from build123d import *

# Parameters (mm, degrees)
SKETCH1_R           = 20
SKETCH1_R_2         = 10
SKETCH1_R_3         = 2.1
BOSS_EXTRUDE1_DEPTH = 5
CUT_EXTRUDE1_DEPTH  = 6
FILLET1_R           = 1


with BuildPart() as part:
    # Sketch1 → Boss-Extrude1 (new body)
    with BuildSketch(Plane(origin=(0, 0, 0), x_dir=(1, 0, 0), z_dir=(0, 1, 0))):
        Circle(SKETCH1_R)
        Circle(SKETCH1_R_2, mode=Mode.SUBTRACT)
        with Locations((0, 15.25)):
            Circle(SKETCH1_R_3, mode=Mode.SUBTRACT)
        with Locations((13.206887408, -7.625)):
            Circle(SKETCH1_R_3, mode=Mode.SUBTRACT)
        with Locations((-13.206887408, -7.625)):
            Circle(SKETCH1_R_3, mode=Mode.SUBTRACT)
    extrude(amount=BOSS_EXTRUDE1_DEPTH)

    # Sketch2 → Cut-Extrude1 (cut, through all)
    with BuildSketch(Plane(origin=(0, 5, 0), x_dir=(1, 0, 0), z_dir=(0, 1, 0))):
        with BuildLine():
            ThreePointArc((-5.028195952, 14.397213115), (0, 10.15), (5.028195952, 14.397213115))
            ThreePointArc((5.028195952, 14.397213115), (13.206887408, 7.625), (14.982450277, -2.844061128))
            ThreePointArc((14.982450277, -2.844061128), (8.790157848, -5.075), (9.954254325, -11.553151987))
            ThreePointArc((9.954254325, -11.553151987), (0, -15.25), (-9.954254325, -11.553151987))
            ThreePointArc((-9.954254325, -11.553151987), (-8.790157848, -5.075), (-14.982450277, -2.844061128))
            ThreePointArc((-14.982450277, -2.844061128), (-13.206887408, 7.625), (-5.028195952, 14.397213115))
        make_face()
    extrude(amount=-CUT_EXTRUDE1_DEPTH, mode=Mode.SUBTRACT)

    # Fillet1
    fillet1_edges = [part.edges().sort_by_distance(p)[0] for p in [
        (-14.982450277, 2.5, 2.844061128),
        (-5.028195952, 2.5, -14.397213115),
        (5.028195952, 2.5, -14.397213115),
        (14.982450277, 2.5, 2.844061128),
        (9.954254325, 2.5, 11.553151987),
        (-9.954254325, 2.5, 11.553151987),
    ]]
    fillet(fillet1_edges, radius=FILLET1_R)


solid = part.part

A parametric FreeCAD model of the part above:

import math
import FreeCAD as App
import Part
import Sketcher

V = App.Vector


def edges_at(feature, points):
    """Names of the edges that pass closest to the given points."""
    edges = feature.Shape.Edges
    near = lambda p: min(range(len(edges)), key=lambda i: edges[i].distToShape(Part.Vertex(*p))[0])
    return sorted({f"Edge{near(p) + 1}" for p in points})

doc = App.newDocument("Part")
body = doc.addObject("PartDesign::Body", "Body")

# Sketch on XZ plane
sketch1 = doc.addObject("Sketcher::SketchObject", "Sketch")
body.addObject(sketch1)
sketch1.AttachmentSupport = (doc.XZ_Plane, [""])
sketch1.MapMode = "FlatFace"
sketch1.addGeometry(Part.Circle(V(0, 0, 0), V(0, 0, 1), 20), False)
sketch1.addGeometry(Part.Circle(V(-13.206887, 7.625, 0), V(0, 0, 1), 2.1), False)
sketch1.addGeometry(Part.Circle(V(13.206887, 7.625, 0), V(0, 0, 1), 2.1), False)
sketch1.addGeometry(Part.Circle(V(0, 0, 0), V(0, 0, 1), 10), False)
sketch1.addGeometry(Part.Circle(V(0, -15.25, 0), V(0, 0, 1), 2.1), False)
sketch1.addConstraint(Sketcher.Constraint("Coincident", 0, 3, -1, 1))
sketch1.addConstraint(Sketcher.Constraint("Coincident", 3, 3, -1, 1))
sketch1.addConstraint(Sketcher.Constraint("Equal", 1, 2))
sketch1.addConstraint(Sketcher.Constraint("Equal", 2, 4))
sketch1.addConstraint(Sketcher.Constraint("Symmetric", 1, 3, 2, 3, -2))
sketch1.addConstraint(Sketcher.Constraint("PointOnObject", 4, 3, -2))
sketch1.addConstraint(Sketcher.Constraint("Diameter", 0, 40.0))
sketch1.addConstraint(Sketcher.Constraint("Diameter", 3, 20.0))
sketch1.addConstraint(Sketcher.Constraint("Diameter", 1, 4.2))
sketch1.addConstraint(Sketcher.Constraint("DistanceY", 4, 3, -1, 1, 15.25))
sketch1.addConstraint(Sketcher.Constraint("DistanceY", -1, 1, 1, 3, 7.625))
sketch1.addConstraint(Sketcher.Constraint("DistanceX", 1, 3, -1, 1, 13.206887))
pad1 = doc.addObject("PartDesign::Pad", "Pad")
body.addObject(pad1)
pad1.Profile = sketch1
pad1.Length = 5
pad1.Reversed = True

# Sketch on XZ plane
sketch2 = doc.addObject("Sketcher::SketchObject", "Sketch001")
body.addObject(sketch2)
sketch2.AttachmentSupport = (doc.XZ_Plane, [""])
sketch2.MapMode = "FlatFace"
sketch2.AttachmentOffset = App.Placement(V(0, 0, -5), App.Rotation())
sketch2.addGeometry(Part.ArcOfCircle(Part.Circle(V(0, -15.25, 0), V(0, 0, 1), 5.1), math.radians(9.625823), math.radians(170.374177)), False)
sketch2.addGeometry(Part.ArcOfCircle(Part.Circle(V(0, 0, 0), V(0, 0, 1), 15.25), math.radians(169.251646), math.radians(250.748354)), False)
sketch2.addGeometry(Part.ArcOfCircle(Part.Circle(V(-13.206887, 7.625, 0), V(0, 0, 1), 5.1), math.radians(-110.374177), math.radians(50.374177)), False)
sketch2.addGeometry(Part.ArcOfCircle(Part.Circle(V(0, 0, 0), V(0, 0, 1), 15.25), math.radians(49.251646), math.radians(130.748354)), False)
sketch2.addGeometry(Part.ArcOfCircle(Part.Circle(V(13.206887, 7.625, 0), V(0, 0, 1), 5.1), math.radians(129.625823), math.radians(290.374177)), False)
sketch2.addGeometry(Part.ArcOfCircle(Part.Circle(V(0, 0, 0), V(0, 0, 1), 15.25), math.radians(-70.748354), math.radians(10.748354)), False)
sketch2.addConstraint(Sketcher.Constraint("Coincident", 0, 2, 1, 2))
sketch2.addConstraint(Sketcher.Constraint("Coincident", 1, 1, 2, 1))
sketch2.addConstraint(Sketcher.Constraint("Coincident", 2, 2, 3, 2))
sketch2.addConstraint(Sketcher.Constraint("Coincident", 3, 1, 4, 1))
sketch2.addConstraint(Sketcher.Constraint("Coincident", 4, 2, 5, 2))
sketch2.addConstraint(Sketcher.Constraint("Coincident", 5, 1, 0, 1))
sketch2.addConstraint(Sketcher.Constraint("Coincident", 1, 3, -1, 1))
sketch2.addConstraint(Sketcher.Constraint("Coincident", 3, 3, -1, 1))
sketch2.addConstraint(Sketcher.Constraint("Coincident", 5, 3, -1, 1))
sketch2.addConstraint(Sketcher.Constraint("Equal", 0, 2))
sketch2.addConstraint(Sketcher.Constraint("Equal", 1, 3))
sketch2.addConstraint(Sketcher.Constraint("Equal", 2, 4))
sketch2.addConstraint(Sketcher.Constraint("Equal", 3, 5))
sketch2.addConstraint(Sketcher.Constraint("Symmetric", 2, 3, 4, 3, -2))
sketch2.addConstraint(Sketcher.Constraint("PointOnObject", 0, 3, -2))
sketch2.addConstraint(Sketcher.Constraint("Radius", 0, 5.1))
sketch2.addConstraint(Sketcher.Constraint("Radius", 1, 15.25))
sketch2.addConstraint(Sketcher.Constraint("DistanceY", 0, 3, -1, 1, 15.25))
sketch2.addConstraint(Sketcher.Constraint("DistanceY", -1, 1, 2, 3, 7.625))
sketch2.addConstraint(Sketcher.Constraint("DistanceX", 1, 1, -1, 1, 14.98245))
pocket1 = doc.addObject("PartDesign::Pocket", "Pocket")
body.addObject(pocket1)
pocket1.Profile = sketch2
pocket1.Type = "ThroughAll"
pocket1.Reversed = True
doc.recompute()

fillet = doc.addObject("PartDesign::Fillet", "Fillet")
body.addObject(fillet)
fillet.Base = (pocket1, edges_at(pocket1, [
    (-14.982, 2.5, 2.844),
    (-5.028, 2.5, -14.397),
    (5.028, 2.5, -14.397),
    (14.982, 2.5, 2.844),
    (9.954, 2.5, 11.553),
    (-9.954, 2.5, 11.553),
]))
fillet.Radius = 1

doc.recompute()
